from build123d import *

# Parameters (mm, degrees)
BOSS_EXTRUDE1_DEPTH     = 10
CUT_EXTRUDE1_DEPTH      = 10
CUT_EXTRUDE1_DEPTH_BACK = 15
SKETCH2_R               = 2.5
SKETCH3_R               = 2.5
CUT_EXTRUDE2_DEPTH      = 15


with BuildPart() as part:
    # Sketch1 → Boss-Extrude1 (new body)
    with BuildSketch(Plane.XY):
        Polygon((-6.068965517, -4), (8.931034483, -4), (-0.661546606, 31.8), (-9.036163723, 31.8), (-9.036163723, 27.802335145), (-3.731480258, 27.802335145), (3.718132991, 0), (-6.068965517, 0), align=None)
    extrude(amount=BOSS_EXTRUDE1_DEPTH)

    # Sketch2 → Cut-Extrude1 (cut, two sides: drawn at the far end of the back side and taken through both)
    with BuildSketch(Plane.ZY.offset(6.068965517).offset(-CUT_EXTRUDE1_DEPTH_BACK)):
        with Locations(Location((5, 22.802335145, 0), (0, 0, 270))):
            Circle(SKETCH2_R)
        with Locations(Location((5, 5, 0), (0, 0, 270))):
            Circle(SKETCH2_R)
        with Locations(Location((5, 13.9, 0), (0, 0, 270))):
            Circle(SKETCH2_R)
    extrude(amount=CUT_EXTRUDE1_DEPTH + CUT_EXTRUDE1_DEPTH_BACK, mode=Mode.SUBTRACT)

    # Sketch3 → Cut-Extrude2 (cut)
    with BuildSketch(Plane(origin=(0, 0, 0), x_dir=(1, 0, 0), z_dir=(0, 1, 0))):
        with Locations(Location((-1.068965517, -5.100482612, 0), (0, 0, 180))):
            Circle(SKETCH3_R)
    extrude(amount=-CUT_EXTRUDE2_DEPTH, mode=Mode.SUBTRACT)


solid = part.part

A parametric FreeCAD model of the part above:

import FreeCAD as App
import Part
import Sketcher
Q = App.Units.Quantity

doc = App.newDocument("Part")
body = doc.addObject("PartDesign::Body", "Body")

# Sketch on XY plane
sketch1 = doc.addObject("Sketcher::SketchObject", "Sketch")
body.addObject(sketch1)
sketch1.AttachmentSupport = (doc.XY_Plane, [""])
sketch1.MapMode = "FlatFace"
sketch1.addGeometry(Part.LineSegment(App.Vector(-6.068966, -4, 0), App.Vector(8.931034, -4, 0)), False)
sketch1.addGeometry(Part.LineSegment(App.Vector(8.931034, -4, 0), App.Vector(-0.661547, 31.8, 0)), False)
sketch1.addGeometry(Part.LineSegment(App.Vector(-0.661547, 31.8, 0), App.Vector(-9.036164, 31.8, 0)), False)
sketch1.addGeometry(Part.LineSegment(App.Vector(-9.036164, 31.8, 0), App.Vector(-9.036164, 27.802335, 0)), False)
sketch1.addGeometry(Part.LineSegment(App.Vector(-9.036164, 27.802335, 0), App.Vector(-3.73148, 27.802335, 0)), False)
sketch1.addGeometry(Part.LineSegment(App.Vector(-3.73148, 27.802335, 0), App.Vector(3.718133, 0, 0)), False)
sketch1.addGeometry(Part.LineSegment(App.Vector(3.718133, 0, 0), App.Vector(-6.068966, 0, 0)), False)
sketch1.addGeometry(Part.LineSegment(App.Vector(-6.068966, 0, 0), App.Vector(-6.068966, -4, 0)), False)
sketch1.addConstraint(Sketcher.Constraint("Coincident", 0, 2, 1, 1))
sketch1.addConstraint(Sketcher.Constraint("Coincident", 1, 2, 2, 1))
sketch1.addConstraint(Sketcher.Constraint("Coincident", 2, 2, 3, 1))
sketch1.addConstraint(Sketcher.Constraint("Coincident", 3, 2, 4, 1))
sketch1.addConstraint(Sketcher.Constraint("Coincident", 4, 2, 5, 1))
sketch1.addConstraint(Sketcher.Constraint("Coincident", 5, 2, 6, 1))
sketch1.addConstraint(Sketcher.Constraint("Coincident", 6, 2, 7, 1))
sketch1.addConstraint(Sketcher.Constraint("Coincident", 7, 2, 0, 1))
sketch1.addConstraint(Sketcher.Constraint("Horizontal", 0))
sketch1.addConstraint(Sketcher.Constraint("Horizontal", 2))
sketch1.addConstraint(Sketcher.Constraint("Vertical", 3))
sketch1.addConstraint(Sketcher.Constraint("Horizontal", 4))
sketch1.addConstraint(Sketcher.Constraint("Horizontal", 6))
sketch1.addConstraint(Sketcher.Constraint("Vertical", 7))
sketch1.addConstraint(Sketcher.Constraint("PointOnObject", 5, 2, -1))
sketch1.addConstraint(Sketcher.Constraint("Parallel", 1, 5))
sketch1.addConstraint(Sketcher.Constraint("DistanceX", 0, 1, 0, 2, Q("15 mm")))
sketch1.addConstraint(Sketcher.Constraint("DistanceY", 7, 2, 7, 1, Q("4 mm")))
sketch1.addConstraint(Sketcher.Constraint("Angle", 1, Q("105 deg")))
sketch1.addConstraint(Sketcher.Constraint("DistanceY", -1, 1, 1, 2, Q("31.8 mm")))
sketch1.addConstraint(Sketcher.Constraint("DistanceX", 6, 2, 6, 1, Q("9.787099 mm")))
sketch1.addConstraint(Sketcher.Constraint("DistanceX", 2, 2, 0, 2, Q("17.967198 mm")))
sketch1.addConstraint(Sketcher.Constraint("DistanceX", 4, 1, 4, 2, Q("5.304683 mm")))
sketch1.addConstraint(Sketcher.Constraint("DistanceX", 4, 2, -1, 1, Q("3.73148 mm")))
pad1 = doc.addObject("PartDesign::Pad", "Pad")
body.addObject(pad1)
pad1.Profile = sketch1
pad1.Length = 10

# Sketch on YZ plane
sketch2 = doc.addObject("Sketcher::SketchObject", "Sketch001")
body.addObject(sketch2)
sketch2.AttachmentSupport = (doc.YZ_Plane, [""])
sketch2.MapMode = "FlatFace"
sketch2.AttachmentOffset = App.Placement(App.Vector(0, 0, -6.068966), App.Rotation())
sketch2.addGeometry(Part.Circle(App.Vector(22.802335, 5, 0), App.Vector(0, 0, 1), 2.5), False)
sketch2.addGeometry(Part.Circle(App.Vector(5, 5, 0), App.Vector(0, 0, 1), 2.5), False)
sketch2.addGeometry(Part.Circle(App.Vector(13.9, 5, 0), App.Vector(0, 0, 1), 2.5), False)
sketch2.addConstraint(Sketcher.Constraint("Equal", 0, 1))
sketch2.addConstraint(Sketcher.Constraint("Equal", 1, 2))
sketch2.addConstraint(Sketcher.Constraint("Horizontal", 0, 3, 1, 3))
sketch2.addConstraint(Sketcher.Constraint("Horizontal", 1, 3, 2, 3))
sketch2.addConstraint(Sketcher.Constraint("Diameter", 0, Q("5 mm")))
sketch2.addConstraint(Sketcher.Constraint("DistanceY", -1, 1, 0, 3, Q("5 mm")))
sketch2.addConstraint(Sketcher.Constraint("DistanceX", -1, 1, 1, 3, Q("5 mm")))
sketch2.addConstraint(Sketcher.Constraint("DistanceX", -1, 1, 2, 3, Q("13.9 mm")))
sketch2.addConstraint(Sketcher.Constraint("DistanceX", -1, 1, 0, 3, Q("22.802335 mm")))
pocket1 = doc.addObject("PartDesign::Pocket", "Pocket")
body.addObject(pocket1)
pocket1.Profile = sketch2
pocket1.Type = "ThroughAll"
pocket1.Midplane = True

# Sketch on XZ plane
sketch3 = doc.addObject("Sketcher::SketchObject", "Sketch002")
body.addObject(sketch3)
sketch3.AttachmentSupport = (doc.XZ_Plane, [""])
sketch3.MapMode = "FlatFace"
sketch3.addGeometry(Part.Circle(App.Vector(-1.068966, 5.100483, 0), App.Vector(0, 0, 1), 2.5), False)
sketch3.addConstraint(Sketcher.Constraint("Diameter", 0, Q("5 mm")))
sketch3.addConstraint(Sketcher.Constraint("DistanceX", 0, 3, -1, 1, Q("1.068966 mm")))
sketch3.addConstraint(Sketcher.Constraint("DistanceY", -1, 1, 0, 3, Q("5.100483 mm")))
pocket2 = doc.addObject("PartDesign::Pocket", "Pocket001")
body.addObject(pocket2)
pocket2.Profile = sketch3
pocket2.Length = 15
pocket2.Reversed = True

doc.recompute()
